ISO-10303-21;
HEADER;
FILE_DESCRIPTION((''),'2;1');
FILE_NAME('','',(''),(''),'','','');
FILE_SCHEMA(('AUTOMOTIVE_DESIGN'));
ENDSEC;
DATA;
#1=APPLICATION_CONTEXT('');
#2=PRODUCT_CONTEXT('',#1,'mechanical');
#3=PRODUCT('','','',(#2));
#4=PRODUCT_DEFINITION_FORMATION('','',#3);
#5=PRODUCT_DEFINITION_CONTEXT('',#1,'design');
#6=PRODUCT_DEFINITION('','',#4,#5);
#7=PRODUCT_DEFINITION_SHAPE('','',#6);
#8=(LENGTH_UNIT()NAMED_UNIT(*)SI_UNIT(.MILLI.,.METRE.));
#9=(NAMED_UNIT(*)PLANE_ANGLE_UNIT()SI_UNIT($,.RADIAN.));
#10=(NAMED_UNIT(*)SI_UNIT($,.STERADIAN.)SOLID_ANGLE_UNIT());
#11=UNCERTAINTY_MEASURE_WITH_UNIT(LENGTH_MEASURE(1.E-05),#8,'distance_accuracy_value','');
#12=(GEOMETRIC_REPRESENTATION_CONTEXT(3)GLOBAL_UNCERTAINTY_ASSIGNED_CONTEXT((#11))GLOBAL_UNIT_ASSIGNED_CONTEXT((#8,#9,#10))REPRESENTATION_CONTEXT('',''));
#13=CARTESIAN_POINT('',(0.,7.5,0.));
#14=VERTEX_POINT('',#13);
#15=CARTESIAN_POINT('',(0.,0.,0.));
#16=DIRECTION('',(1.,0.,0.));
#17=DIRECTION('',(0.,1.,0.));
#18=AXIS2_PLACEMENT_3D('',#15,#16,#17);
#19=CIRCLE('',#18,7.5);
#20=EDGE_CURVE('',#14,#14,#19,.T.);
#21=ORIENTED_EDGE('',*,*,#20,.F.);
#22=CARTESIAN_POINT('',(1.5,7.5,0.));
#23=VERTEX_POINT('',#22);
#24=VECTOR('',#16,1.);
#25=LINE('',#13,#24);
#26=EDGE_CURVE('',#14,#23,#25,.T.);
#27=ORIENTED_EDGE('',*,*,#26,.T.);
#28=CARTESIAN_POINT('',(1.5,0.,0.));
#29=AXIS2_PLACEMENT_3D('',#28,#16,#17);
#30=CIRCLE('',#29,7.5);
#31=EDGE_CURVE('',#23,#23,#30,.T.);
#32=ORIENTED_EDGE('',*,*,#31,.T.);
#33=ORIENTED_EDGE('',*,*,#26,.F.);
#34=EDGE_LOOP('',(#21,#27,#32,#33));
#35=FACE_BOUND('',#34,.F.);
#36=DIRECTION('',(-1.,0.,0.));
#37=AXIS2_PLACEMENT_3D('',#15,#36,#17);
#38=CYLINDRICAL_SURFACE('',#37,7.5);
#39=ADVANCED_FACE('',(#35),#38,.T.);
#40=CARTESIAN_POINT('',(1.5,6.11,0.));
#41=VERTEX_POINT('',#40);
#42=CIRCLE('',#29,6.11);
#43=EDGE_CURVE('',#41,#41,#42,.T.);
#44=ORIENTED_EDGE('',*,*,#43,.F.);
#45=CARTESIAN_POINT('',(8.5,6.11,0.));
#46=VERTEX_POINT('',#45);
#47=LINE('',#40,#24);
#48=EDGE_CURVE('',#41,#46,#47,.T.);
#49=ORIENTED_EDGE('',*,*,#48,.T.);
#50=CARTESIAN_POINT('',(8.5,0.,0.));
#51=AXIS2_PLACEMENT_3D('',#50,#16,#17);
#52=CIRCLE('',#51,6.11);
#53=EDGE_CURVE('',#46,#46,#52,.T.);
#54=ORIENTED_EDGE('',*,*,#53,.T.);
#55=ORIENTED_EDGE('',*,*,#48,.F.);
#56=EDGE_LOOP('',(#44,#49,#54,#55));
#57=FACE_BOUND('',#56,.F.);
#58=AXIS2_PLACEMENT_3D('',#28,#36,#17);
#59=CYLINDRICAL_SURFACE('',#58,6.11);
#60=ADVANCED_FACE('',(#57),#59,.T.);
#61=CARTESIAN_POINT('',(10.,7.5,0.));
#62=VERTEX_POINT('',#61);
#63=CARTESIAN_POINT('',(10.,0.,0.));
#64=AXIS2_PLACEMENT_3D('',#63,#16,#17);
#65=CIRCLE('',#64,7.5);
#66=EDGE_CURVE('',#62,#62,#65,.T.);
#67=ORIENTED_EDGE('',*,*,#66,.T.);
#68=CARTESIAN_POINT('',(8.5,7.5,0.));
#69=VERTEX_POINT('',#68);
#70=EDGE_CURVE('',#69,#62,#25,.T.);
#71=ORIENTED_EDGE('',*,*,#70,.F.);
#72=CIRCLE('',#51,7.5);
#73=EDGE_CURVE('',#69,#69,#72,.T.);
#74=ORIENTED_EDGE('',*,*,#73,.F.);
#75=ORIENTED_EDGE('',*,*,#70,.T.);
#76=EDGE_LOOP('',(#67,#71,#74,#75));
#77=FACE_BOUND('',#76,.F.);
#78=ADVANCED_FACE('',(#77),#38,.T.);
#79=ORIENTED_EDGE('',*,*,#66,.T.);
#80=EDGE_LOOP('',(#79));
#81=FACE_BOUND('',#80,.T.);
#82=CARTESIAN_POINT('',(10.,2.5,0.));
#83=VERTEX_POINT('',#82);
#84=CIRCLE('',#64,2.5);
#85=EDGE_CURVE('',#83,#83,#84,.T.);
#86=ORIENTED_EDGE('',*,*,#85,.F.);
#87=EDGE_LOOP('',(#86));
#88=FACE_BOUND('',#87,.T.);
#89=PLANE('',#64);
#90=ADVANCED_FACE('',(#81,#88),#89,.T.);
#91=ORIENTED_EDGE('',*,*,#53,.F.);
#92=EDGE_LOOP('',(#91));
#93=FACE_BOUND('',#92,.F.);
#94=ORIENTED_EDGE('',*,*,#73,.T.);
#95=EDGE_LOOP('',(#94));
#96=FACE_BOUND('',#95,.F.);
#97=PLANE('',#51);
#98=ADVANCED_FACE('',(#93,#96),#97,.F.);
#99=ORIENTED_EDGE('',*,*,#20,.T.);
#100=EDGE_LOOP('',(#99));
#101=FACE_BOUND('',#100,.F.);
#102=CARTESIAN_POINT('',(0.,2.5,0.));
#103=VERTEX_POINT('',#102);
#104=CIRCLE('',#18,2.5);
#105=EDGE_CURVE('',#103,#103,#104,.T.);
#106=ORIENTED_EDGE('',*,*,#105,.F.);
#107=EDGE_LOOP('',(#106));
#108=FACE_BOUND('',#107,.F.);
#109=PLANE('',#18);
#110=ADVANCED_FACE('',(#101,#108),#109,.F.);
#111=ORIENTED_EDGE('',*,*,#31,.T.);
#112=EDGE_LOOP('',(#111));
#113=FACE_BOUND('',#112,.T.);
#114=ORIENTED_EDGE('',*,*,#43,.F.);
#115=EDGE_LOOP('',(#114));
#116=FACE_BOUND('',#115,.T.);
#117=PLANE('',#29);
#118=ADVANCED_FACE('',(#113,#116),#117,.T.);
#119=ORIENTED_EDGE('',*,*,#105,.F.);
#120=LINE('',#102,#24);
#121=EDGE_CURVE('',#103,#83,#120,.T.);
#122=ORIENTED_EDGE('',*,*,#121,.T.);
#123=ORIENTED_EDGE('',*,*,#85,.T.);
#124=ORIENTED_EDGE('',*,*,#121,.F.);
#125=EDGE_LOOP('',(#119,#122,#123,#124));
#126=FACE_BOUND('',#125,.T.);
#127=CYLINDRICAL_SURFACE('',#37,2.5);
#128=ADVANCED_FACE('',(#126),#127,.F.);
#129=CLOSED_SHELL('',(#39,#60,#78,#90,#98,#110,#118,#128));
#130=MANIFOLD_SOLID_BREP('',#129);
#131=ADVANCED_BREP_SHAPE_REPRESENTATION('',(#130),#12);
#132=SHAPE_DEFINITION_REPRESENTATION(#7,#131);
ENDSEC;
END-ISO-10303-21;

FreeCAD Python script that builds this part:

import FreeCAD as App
import Part
import Sketcher

V = App.Vector

doc = App.newDocument("Part")
body = doc.addObject("PartDesign::Body", "Body")

# Sketch on YZ plane
sketch1 = body.newObject("Sketcher::SketchObject", "Sketch")
sketch1.AttachmentSupport = (doc.getObject("YZ_Plane"), [""])
sketch1.MapMode = "FlatFace"
sketch1.addGeometry([
    Part.Circle(V(0, 0, 0), V(0, 0, 1), 7.5),
    Part.Circle(V(0, 0, 0), V(0, 0, 1), 2.5),
], False)
sketch1.addConstraint([
    Sketcher.Constraint("Coincident", 0, 3, -1, 1),
    Sketcher.Constraint("Coincident", 1, 3, -1, 1),
    Sketcher.Constraint("Diameter", 0, 15.0),
    Sketcher.Constraint("Diameter", 1, 5.0),
])
pad1 = body.newObject("PartDesign::Pad", "Pad")
pad1.Profile = sketch1
pad1.Length = 10

# Sketch on YZ plane
sketch2 = body.newObject("Sketcher::SketchObject", "Sketch001")
sketch2.AttachmentSupport = (doc.getObject("YZ_Plane"), [""])
sketch2.MapMode = "FlatFace"
sketch2.AttachmentOffset = App.Placement(V(0, 0, 1.5), App.Rotation())
sketch2.addGeometry([
    Part.Circle(V(0, 0, 0), V(0, 0, 1), 8),
    Part.Circle(V(0, 0, 0), V(0, 0, 1), 6),
], False)
sketch2.addConstraint([
    Sketcher.Constraint("Coincident", 0, 3, -1, 1),
    Sketcher.Constraint("Coincident", 1, 3, -1, 1),
    Sketcher.Constraint("Diameter", 0, 15.0),
    Sketcher.Constraint("Diameter", 1, 12.22),
])
pocket1 = body.newObject("PartDesign::Pocket", "Pocket")
pocket1.Profile = sketch2
pocket1.Length = 7
pocket1.Reversed = True

doc.recompute()
